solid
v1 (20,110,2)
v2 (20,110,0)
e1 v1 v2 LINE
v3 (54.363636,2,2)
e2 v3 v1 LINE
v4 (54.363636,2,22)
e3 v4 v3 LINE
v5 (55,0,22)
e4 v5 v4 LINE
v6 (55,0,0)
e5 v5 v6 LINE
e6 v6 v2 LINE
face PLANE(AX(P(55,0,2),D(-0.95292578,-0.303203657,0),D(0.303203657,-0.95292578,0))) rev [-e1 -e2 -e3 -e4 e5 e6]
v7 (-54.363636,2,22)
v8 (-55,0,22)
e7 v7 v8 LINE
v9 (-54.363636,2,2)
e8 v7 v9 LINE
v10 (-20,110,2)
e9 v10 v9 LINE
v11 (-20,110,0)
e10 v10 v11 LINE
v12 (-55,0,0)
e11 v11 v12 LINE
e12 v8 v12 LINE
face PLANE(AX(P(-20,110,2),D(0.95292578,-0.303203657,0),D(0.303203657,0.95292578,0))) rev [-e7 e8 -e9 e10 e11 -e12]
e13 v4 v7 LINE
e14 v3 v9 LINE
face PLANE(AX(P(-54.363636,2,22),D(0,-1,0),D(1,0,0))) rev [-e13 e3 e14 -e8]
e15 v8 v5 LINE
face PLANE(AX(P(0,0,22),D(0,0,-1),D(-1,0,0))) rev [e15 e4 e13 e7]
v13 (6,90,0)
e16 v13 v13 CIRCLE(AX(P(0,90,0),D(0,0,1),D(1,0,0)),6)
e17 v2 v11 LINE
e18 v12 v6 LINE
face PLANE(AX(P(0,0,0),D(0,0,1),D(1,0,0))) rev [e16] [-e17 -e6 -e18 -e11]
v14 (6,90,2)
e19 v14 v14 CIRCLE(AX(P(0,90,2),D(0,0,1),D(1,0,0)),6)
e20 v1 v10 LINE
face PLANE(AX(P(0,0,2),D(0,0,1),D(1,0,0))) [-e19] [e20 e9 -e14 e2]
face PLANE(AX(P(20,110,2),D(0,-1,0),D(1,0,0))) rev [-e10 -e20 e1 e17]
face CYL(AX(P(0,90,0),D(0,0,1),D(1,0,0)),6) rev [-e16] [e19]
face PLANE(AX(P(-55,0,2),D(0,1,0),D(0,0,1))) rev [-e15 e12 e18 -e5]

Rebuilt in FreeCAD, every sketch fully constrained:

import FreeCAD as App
import Part
import Sketcher
from FreeCAD import Vector


def add_polygon(sketch, points):
    """Adds a closed chain of lines whose ends are joined by coincident constraints."""
    first, n = sketch.GeometryCount, len(points)
    for a, b in zip(points, points[1:] + points[:1]):
        sketch.addGeometry(Part.LineSegment(App.Vector(*a, 0), App.Vector(*b, 0)), False)
    for i in range(n):
        sketch.addConstraint(Sketcher.Constraint("Coincident", first + i, 2, first + (i + 1) % n, 1))

doc = App.newDocument("Part")
body = doc.addObject("PartDesign::Body", "Body")

sketch1 = doc.addObject("Sketcher::SketchObject", "Sketch")
body.addObject(sketch1)
sketch1.AttachmentSupport = (doc.XY_Plane, [""])
sketch1.MapMode = "FlatFace"
add_polygon(sketch1, [(-55, 0), (55, 0), (20, 110), (-20, 110)])
sketch1.addConstraint(Sketcher.Constraint("Horizontal", 0))
sketch1.addConstraint(Sketcher.Constraint("Horizontal", 2))
sketch1.addConstraint(Sketcher.Constraint("Symmetric", 0, 2, 3, 2, -1, 1))
sketch1.addConstraint(Sketcher.Constraint("Equal", 1, 3))
sketch1.addConstraint(Sketcher.Constraint("DistanceX", 0, 1, 0, 2, 110.0))
sketch1.addConstraint(Sketcher.Constraint("DistanceX", 2, 2, 2, 1, 40.0))
sketch1.addConstraint(Sketcher.Constraint("DistanceY", -1, 1, 1, 2, 110.0))
pad1 = doc.addObject("PartDesign::Pad", "Pad")
body.addObject(pad1)
pad1.Profile = sketch1
pad1.Length = 2

sketch2 = doc.addObject("Sketcher::SketchObject", "Sketch001")
body.addObject(sketch2)
sketch2.AttachmentSupport = (doc.XY_Plane, [""])
sketch2.MapMode = "FlatFace"
sketch2.AttachmentOffset = App.Placement(Vector(0, 0, 2), App.Rotation())
sketch2.addGeometry(Part.Circle(Vector(0, 90, 0), Vector(0, 0, 1), 6), False)
sketch2.addConstraint(Sketcher.Constraint("PointOnObject", 0, 3, -2))
sketch2.addConstraint(Sketcher.Constraint("Diameter", 0, 12.0))
sketch2.addConstraint(Sketcher.Constraint("DistanceY", -1, 1, 0, 3, 90.0))
pocket1 = doc.addObject("PartDesign::Pocket", "Pocket")
body.addObject(pocket1)
pocket1.Profile = sketch2
pocket1.Type = "ThroughAll"

sketch3 = doc.addObject("Sketcher::SketchObject", "Sketch002")
body.addObject(sketch3)
sketch3.AttachmentSupport = (doc.XY_Plane, [""])
sketch3.MapMode = "FlatFace"
sketch3.AttachmentOffset = App.Placement(Vector(0, 0, 2), App.Rotation())
add_polygon(sketch3, [(-54.4, 2), (-55, 0), (55, 0), (54.4, 2)])
sketch3.addConstraint(Sketcher.Constraint("Horizontal", 1))
sketch3.addConstraint(Sketcher.Constraint("Horizontal", 3))
sketch3.addConstraint(Sketcher.Constraint("Symmetric", 0, 2, 1, 2, -1, 1))
sketch3.addConstraint(Sketcher.Constraint("Equal", 0, 2))
sketch3.addConstraint(Sketcher.Constraint("DistanceX", 1, 1, 1, 2, 110.0))
sketch3.addConstraint(Sketcher.Constraint("DistanceY", -1, 1, 2, 2, 2.0))
sketch3.addConstraint(Sketcher.Constraint("Distance", 0, 2.098799))
pad2 = doc.addObject("PartDesign::Pad", "Pad001")
body.addObject(pad2)
pad2.Profile = sketch3
pad2.Length = 20

doc.recompute()
